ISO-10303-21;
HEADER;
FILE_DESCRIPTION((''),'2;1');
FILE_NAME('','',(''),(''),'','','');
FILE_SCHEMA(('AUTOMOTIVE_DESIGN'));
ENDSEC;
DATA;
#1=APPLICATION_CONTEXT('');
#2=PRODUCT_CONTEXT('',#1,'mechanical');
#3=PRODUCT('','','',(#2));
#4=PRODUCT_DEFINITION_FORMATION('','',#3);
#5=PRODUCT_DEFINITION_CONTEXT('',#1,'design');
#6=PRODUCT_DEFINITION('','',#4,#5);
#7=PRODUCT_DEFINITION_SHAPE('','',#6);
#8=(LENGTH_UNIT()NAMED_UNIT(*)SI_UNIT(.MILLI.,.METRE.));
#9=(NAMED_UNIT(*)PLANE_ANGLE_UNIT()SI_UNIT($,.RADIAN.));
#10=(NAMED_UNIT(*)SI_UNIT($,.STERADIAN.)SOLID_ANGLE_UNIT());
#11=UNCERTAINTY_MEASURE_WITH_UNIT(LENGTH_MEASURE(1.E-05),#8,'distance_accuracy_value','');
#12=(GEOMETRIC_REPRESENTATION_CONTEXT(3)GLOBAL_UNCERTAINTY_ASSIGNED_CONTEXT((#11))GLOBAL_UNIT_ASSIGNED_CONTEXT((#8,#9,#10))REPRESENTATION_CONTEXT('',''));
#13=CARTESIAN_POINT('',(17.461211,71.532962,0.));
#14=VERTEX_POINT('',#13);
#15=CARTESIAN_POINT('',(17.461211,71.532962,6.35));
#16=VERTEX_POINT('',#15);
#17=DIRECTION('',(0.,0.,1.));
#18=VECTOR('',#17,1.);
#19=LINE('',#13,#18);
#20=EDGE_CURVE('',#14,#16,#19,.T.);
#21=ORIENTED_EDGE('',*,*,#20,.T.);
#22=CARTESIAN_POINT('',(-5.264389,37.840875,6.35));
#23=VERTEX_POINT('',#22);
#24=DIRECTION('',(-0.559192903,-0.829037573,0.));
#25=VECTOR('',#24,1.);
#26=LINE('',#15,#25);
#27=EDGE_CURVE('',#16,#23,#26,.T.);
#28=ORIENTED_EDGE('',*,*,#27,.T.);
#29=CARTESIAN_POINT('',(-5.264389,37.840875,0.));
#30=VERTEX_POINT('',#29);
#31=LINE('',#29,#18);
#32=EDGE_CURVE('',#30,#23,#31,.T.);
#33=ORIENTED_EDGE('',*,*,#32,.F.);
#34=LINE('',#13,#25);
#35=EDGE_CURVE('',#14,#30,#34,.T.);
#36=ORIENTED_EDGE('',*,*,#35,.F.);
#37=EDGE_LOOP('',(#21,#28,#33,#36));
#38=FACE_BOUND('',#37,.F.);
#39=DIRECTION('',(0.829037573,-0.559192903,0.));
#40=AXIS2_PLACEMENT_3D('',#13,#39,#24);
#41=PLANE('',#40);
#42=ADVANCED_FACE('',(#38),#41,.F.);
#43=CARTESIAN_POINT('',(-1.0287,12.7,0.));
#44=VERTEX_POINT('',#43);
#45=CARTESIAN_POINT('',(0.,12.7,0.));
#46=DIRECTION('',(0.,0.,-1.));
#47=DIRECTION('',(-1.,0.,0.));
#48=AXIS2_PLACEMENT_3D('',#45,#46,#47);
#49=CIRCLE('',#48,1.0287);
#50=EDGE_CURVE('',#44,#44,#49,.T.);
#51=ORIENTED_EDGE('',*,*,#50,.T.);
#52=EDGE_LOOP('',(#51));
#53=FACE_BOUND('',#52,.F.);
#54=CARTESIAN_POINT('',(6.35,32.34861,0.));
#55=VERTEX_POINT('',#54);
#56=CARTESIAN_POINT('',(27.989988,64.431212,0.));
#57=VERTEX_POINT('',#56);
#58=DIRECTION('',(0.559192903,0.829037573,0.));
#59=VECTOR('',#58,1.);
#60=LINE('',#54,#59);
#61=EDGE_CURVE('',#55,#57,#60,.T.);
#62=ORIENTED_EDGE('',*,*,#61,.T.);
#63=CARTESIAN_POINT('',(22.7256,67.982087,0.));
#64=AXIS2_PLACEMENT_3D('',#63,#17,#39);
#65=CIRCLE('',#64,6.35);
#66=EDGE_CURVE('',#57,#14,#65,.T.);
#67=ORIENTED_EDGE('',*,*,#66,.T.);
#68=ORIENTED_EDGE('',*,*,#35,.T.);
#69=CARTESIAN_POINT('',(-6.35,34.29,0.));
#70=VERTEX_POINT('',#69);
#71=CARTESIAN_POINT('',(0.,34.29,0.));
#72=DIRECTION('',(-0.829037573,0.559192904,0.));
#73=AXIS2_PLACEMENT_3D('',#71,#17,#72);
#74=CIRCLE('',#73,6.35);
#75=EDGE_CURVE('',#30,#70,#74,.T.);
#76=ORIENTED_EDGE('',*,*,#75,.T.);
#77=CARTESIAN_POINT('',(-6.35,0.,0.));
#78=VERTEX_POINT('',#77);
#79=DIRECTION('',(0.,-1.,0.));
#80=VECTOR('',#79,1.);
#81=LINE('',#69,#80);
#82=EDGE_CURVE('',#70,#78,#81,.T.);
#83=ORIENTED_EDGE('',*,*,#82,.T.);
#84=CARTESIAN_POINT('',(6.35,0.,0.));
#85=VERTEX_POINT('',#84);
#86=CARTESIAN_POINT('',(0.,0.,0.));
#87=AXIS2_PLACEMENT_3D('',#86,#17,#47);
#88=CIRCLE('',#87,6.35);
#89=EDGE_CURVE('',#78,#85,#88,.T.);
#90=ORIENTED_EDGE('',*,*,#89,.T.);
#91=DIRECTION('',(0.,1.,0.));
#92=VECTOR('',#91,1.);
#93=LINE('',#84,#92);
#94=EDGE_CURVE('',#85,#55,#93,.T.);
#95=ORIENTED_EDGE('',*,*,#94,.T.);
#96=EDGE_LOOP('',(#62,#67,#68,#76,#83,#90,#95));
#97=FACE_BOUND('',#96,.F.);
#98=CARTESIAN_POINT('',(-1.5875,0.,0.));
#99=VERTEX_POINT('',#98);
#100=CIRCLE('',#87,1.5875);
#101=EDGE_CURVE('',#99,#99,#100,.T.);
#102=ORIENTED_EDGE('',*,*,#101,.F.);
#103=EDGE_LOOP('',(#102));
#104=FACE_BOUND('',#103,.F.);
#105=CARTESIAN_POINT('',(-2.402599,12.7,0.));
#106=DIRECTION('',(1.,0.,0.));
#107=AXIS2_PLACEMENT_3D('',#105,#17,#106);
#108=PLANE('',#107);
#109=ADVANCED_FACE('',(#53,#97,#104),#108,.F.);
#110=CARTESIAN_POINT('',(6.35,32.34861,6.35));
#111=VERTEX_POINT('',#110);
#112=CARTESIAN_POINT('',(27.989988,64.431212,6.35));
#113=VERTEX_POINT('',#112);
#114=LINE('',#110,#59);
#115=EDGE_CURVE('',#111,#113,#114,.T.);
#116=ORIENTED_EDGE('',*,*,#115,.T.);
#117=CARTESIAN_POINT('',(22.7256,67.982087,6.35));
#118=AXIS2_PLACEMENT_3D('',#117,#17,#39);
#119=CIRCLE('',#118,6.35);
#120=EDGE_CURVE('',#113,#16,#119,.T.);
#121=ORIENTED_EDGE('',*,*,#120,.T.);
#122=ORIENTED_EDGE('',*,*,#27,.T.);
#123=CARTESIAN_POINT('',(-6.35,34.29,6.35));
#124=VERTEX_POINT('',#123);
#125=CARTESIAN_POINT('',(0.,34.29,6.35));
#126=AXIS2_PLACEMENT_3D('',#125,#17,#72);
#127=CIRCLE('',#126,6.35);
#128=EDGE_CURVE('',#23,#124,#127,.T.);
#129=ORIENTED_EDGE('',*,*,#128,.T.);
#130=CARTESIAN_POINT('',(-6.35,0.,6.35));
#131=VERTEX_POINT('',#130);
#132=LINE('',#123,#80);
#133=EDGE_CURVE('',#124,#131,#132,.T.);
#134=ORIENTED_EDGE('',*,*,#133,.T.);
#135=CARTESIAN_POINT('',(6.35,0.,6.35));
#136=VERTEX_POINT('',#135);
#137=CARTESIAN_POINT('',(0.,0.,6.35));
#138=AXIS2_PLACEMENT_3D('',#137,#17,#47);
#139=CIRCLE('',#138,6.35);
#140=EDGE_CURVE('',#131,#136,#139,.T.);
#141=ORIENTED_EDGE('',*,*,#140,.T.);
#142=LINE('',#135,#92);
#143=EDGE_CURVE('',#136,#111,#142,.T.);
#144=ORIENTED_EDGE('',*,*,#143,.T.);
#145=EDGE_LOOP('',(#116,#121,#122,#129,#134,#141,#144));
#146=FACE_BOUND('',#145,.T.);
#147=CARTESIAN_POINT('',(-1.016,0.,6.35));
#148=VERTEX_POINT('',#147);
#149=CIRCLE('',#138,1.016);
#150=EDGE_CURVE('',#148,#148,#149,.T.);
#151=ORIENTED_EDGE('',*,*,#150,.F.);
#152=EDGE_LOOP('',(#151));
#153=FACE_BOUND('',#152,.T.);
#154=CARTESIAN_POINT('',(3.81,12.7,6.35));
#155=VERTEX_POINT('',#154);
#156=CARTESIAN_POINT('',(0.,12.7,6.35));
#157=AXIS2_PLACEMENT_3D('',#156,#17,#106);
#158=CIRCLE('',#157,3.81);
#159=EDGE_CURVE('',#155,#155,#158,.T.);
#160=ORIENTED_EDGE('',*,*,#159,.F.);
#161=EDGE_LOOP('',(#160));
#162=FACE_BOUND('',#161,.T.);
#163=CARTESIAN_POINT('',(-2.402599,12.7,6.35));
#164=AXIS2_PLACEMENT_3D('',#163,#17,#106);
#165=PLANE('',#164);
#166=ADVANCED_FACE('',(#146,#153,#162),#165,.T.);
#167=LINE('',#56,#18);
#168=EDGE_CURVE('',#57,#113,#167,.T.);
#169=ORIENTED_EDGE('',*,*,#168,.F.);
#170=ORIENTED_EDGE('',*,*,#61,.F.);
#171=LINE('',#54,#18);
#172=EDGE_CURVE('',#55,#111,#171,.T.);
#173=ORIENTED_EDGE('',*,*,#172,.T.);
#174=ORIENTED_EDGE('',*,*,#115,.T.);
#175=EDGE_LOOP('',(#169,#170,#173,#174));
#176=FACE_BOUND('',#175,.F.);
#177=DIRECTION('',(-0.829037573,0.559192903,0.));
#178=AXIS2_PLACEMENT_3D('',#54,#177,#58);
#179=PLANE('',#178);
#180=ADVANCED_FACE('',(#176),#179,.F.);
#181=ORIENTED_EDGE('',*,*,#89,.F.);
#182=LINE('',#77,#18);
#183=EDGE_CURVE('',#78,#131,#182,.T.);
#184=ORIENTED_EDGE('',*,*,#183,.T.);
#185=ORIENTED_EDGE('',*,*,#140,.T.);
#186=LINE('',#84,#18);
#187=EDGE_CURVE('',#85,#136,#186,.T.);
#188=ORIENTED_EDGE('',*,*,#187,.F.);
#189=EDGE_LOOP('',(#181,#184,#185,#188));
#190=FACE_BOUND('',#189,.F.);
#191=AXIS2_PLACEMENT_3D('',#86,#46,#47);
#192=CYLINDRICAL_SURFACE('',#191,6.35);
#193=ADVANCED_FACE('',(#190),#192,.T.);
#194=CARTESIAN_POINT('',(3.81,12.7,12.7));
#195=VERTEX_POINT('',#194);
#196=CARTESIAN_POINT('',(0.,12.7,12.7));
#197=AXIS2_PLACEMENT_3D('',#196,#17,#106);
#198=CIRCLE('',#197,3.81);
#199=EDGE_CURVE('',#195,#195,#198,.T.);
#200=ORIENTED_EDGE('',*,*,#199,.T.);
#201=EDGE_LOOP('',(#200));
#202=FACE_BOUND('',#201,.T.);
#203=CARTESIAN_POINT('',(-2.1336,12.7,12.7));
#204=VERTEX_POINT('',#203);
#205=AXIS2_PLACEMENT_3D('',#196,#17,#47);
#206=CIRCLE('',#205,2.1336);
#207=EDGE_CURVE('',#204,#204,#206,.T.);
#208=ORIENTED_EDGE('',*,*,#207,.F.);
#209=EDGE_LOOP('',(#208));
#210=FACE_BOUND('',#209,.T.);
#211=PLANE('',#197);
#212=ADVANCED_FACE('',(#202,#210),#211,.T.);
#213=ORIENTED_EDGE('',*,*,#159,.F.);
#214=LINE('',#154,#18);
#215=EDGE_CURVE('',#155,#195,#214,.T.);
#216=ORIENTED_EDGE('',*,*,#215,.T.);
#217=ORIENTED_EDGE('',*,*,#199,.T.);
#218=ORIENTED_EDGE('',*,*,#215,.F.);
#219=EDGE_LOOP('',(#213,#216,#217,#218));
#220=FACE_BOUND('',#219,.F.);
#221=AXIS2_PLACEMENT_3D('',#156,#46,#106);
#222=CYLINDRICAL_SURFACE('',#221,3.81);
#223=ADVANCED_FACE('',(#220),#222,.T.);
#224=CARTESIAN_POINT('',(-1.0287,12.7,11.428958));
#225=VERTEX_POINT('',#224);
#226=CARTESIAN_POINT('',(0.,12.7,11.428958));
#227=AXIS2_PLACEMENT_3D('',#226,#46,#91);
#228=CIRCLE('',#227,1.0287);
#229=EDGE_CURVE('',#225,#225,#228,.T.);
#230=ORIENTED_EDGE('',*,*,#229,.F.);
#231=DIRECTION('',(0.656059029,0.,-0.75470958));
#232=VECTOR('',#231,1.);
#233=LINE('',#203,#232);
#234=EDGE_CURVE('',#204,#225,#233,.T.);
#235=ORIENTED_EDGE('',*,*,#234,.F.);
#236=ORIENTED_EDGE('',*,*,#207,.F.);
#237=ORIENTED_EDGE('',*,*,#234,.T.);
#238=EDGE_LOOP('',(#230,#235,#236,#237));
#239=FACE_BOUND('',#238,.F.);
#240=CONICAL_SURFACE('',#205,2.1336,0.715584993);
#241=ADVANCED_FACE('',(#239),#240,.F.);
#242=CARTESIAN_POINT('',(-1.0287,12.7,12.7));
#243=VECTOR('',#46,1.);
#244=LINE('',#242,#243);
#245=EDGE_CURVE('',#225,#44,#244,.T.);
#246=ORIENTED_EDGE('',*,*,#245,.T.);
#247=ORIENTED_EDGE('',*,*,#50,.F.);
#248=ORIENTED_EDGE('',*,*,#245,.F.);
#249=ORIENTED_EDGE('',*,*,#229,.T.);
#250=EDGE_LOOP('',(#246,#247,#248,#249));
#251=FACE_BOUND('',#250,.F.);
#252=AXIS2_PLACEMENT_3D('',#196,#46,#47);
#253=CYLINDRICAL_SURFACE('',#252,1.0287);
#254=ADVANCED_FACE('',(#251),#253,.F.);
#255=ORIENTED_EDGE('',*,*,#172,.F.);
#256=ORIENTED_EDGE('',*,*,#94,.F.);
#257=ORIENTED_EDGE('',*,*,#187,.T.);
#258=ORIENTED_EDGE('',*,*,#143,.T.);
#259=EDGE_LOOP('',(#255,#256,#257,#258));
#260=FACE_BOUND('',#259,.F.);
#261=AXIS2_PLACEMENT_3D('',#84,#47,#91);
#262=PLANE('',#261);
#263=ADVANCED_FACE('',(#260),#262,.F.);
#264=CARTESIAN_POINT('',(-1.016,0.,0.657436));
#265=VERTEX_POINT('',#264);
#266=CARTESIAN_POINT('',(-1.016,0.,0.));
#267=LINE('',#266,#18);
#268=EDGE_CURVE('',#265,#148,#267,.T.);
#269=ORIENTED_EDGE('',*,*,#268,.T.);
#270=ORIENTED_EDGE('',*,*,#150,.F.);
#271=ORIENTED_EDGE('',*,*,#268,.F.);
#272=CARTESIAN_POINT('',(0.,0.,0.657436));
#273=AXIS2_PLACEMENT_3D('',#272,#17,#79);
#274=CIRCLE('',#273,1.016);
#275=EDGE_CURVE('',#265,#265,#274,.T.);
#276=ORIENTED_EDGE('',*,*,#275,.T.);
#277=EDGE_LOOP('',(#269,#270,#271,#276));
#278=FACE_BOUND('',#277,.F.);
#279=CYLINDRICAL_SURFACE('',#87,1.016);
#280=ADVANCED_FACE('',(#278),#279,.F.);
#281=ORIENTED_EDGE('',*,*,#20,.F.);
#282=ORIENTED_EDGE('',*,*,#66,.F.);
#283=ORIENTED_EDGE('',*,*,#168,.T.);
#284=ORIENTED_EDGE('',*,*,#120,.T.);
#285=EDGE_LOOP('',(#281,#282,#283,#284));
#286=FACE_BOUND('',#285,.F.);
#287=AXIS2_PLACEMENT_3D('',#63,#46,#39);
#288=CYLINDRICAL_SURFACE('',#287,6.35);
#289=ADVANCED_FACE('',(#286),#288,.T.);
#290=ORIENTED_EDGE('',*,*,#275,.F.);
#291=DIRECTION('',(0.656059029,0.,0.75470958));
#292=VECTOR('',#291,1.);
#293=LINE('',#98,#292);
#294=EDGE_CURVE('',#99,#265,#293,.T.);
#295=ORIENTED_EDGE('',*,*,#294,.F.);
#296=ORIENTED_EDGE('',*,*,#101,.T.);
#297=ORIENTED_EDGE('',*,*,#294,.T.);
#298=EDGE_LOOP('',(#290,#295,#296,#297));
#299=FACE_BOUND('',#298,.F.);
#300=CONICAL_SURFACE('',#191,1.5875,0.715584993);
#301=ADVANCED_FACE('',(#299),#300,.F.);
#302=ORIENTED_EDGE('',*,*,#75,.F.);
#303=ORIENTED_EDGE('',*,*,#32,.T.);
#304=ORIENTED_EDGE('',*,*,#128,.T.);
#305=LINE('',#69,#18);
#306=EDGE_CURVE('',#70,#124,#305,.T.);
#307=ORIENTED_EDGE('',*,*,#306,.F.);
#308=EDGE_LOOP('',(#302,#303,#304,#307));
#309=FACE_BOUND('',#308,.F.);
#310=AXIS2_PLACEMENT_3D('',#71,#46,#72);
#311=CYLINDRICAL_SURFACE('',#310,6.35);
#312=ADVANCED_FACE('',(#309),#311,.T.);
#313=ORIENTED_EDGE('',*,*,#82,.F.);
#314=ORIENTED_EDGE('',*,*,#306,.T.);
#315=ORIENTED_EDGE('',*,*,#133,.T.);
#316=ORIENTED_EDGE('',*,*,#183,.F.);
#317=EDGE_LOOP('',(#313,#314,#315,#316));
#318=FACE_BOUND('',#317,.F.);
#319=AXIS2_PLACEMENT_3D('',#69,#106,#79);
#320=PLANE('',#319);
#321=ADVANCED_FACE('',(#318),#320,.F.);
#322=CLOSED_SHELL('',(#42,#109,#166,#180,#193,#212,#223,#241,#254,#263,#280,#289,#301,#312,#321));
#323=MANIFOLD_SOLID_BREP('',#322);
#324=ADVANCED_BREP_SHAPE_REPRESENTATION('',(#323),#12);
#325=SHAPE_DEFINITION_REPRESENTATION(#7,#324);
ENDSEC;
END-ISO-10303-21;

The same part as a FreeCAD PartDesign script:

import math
import FreeCAD as App
import Part
import Sketcher

V = App.Vector
Q = App.Units.Quantity

doc = App.newDocument("Part")
body = doc.addObject("PartDesign::Body", "Body")

# Sketch on XY plane
sketch1 = doc.addObject("Sketcher::SketchObject", "Sketch")
body.addObject(sketch1)
sketch1.AttachmentSupport = (doc.XY_Plane, [""])
sketch1.MapMode = "FlatFace"
sketch1.addGeometry([
    Part.ArcOfCircle(Part.Circle(V(0, 0, 0), V(0, 0, 1), 6.3), math.radians(180), math.radians(360)),  # 0
    Part.LineSegment(V(6.3, 0, 0), V(6.3, 32.3, 0)),  # 1
    Part.LineSegment(V(6.3, 32.3, 0), V(28, 64.4, 0)),  # 2
    Part.ArcOfCircle(Part.Circle(V(22.7, 68, 0), V(0, 0, 1), 6.3), math.radians(-34), math.radians(146)),  # 3
    Part.LineSegment(V(17.5, 71.5, 0), V(-5.3, 37.8, 0)),  # 4
    Part.ArcOfCircle(Part.Circle(V(0, 34.3, 0), V(0, 0, 1), 6.3), math.radians(146), math.radians(180)),  # 5
    Part.LineSegment(V(-6.3, 34.3, 0), V(-6.3, 0, 0)),  # 6
], False)
sketch1.addConstraint([
    Sketcher.Constraint("Tangent", 0, 2, 1, 1),
    Sketcher.Constraint("Coincident", 1, 2, 2, 1),
    Sketcher.Constraint("Tangent", 2, 2, 3, 1),
    Sketcher.Constraint("Tangent", 3, 2, 4, 1),
    Sketcher.Constraint("Tangent", 4, 2, 5, 1),
    Sketcher.Constraint("Tangent", 5, 2, 6, 1),
    Sketcher.Constraint("Tangent", 6, 2, 0, 1),
    Sketcher.Constraint("Vertical", 1),
    Sketcher.Constraint("Vertical", 6),
    Sketcher.Constraint("Coincident", 0, 3, -1, 1),
    Sketcher.Constraint("Equal", 0, 3),
    Sketcher.Constraint("Equal", 3, 5),
    Sketcher.Constraint("Parallel", 2, 4),
    Sketcher.Constraint("Radius", 0, Q("0.25 in")),
    Sketcher.Constraint("Angle", 2, Q("56 deg")),
    Sketcher.Constraint("Distance", 4, Q("1.6 in")),
    Sketcher.Constraint("DistanceY", 6, 2, 6, 1, Q("1.35 in")),
])
pad1 = doc.addObject("PartDesign::Pad", "Pad")
body.addObject(pad1)
pad1.Profile = sketch1
pad1.Length = Q("0.25 in")

# Sketch on XY plane
sketch2 = doc.addObject("Sketcher::SketchObject", "Sketch001")
body.addObject(sketch2)
sketch2.AttachmentSupport = (doc.XY_Plane, [""])
sketch2.MapMode = "FlatFace"
sketch2.AttachmentOffset = App.Placement(V(0, 0, 0.25 * 25.4), App.Rotation())
sketch2.addGeometry(Part.Circle(V(0, 12.7, 0), V(0, 0, 1), 3.8), False)
sketch2.addConstraint([
    Sketcher.Constraint("PointOnObject", 0, 3, -2),
    Sketcher.Constraint("Diameter", 0, Q("0.3 in")),
    Sketcher.Constraint("DistanceY", -1, 1, 0, 3, Q("0.5 in")),
])
pad2 = doc.addObject("PartDesign::Pad", "Pad001")
body.addObject(pad2)
pad2.Profile = sketch2
pad2.Length = Q("0.25 in")

# Sketch on XY plane
sketch3 = doc.addObject("Sketcher::SketchObject", "Sketch002")
body.addObject(sketch3)
sketch3.AttachmentSupport = (doc.XY_Plane, [""])
sketch3.MapMode = "FlatFace"
sketch3.AttachmentOffset = App.Placement(V(0, 0, 0.5 * 25.4), App.Rotation())
sketch3.addGeometry(Part.Circle(V(0, 12.7, 0), V(0, 0, 1), 1), False)
sketch3.addConstraint([
    Sketcher.Constraint("PointOnObject", 0, 3, -2),
    Sketcher.Constraint("Diameter", 0, Q("0.081 in")),
    Sketcher.Constraint("DistanceY", -1, 1, 0, 3, Q("0.5 in")),
])
doc.recompute()
hole = doc.addObject("PartDesign::Hole", "Hole")
body.addObject(hole)
hole.Profile = sketch3
hole.ThreadType = "None"
hole.Diameter = Q("0.081 in")
hole.DepthType = "ThroughAll"
hole.HoleCutType = "Countersink"
hole.HoleCutDiameter = Q("0.168 in")
hole.HoleCutCountersinkAngle = 82

# Sketch on XY plane
sketch4 = doc.addObject("Sketcher::SketchObject", "Sketch003")
body.addObject(sketch4)
sketch4.AttachmentSupport = (doc.XY_Plane, [""])
sketch4.MapMode = "FlatFace"
sketch4.addGeometry(Part.Circle(V(0, 0, 0), V(0, 0, 1), 1), False)
sketch4.addConstraint([
    Sketcher.Constraint("Coincident", 0, 3, -1, 1),
    Sketcher.Constraint("Diameter", 0, Q("0.08 in")),
])
doc.recompute()
hole2 = doc.addObject("PartDesign::Hole", "Hole001")
body.addObject(hole2)
hole2.Profile = sketch4
hole2.ThreadType = "None"
hole2.Diameter = Q("0.08 in")
hole2.DepthType = "ThroughAll"
hole2.HoleCutType = "Countersink"
hole2.HoleCutDiameter = Q("0.125 in")
hole2.HoleCutCountersinkAngle = 82
hole2.Reversed = True

doc.recompute()
